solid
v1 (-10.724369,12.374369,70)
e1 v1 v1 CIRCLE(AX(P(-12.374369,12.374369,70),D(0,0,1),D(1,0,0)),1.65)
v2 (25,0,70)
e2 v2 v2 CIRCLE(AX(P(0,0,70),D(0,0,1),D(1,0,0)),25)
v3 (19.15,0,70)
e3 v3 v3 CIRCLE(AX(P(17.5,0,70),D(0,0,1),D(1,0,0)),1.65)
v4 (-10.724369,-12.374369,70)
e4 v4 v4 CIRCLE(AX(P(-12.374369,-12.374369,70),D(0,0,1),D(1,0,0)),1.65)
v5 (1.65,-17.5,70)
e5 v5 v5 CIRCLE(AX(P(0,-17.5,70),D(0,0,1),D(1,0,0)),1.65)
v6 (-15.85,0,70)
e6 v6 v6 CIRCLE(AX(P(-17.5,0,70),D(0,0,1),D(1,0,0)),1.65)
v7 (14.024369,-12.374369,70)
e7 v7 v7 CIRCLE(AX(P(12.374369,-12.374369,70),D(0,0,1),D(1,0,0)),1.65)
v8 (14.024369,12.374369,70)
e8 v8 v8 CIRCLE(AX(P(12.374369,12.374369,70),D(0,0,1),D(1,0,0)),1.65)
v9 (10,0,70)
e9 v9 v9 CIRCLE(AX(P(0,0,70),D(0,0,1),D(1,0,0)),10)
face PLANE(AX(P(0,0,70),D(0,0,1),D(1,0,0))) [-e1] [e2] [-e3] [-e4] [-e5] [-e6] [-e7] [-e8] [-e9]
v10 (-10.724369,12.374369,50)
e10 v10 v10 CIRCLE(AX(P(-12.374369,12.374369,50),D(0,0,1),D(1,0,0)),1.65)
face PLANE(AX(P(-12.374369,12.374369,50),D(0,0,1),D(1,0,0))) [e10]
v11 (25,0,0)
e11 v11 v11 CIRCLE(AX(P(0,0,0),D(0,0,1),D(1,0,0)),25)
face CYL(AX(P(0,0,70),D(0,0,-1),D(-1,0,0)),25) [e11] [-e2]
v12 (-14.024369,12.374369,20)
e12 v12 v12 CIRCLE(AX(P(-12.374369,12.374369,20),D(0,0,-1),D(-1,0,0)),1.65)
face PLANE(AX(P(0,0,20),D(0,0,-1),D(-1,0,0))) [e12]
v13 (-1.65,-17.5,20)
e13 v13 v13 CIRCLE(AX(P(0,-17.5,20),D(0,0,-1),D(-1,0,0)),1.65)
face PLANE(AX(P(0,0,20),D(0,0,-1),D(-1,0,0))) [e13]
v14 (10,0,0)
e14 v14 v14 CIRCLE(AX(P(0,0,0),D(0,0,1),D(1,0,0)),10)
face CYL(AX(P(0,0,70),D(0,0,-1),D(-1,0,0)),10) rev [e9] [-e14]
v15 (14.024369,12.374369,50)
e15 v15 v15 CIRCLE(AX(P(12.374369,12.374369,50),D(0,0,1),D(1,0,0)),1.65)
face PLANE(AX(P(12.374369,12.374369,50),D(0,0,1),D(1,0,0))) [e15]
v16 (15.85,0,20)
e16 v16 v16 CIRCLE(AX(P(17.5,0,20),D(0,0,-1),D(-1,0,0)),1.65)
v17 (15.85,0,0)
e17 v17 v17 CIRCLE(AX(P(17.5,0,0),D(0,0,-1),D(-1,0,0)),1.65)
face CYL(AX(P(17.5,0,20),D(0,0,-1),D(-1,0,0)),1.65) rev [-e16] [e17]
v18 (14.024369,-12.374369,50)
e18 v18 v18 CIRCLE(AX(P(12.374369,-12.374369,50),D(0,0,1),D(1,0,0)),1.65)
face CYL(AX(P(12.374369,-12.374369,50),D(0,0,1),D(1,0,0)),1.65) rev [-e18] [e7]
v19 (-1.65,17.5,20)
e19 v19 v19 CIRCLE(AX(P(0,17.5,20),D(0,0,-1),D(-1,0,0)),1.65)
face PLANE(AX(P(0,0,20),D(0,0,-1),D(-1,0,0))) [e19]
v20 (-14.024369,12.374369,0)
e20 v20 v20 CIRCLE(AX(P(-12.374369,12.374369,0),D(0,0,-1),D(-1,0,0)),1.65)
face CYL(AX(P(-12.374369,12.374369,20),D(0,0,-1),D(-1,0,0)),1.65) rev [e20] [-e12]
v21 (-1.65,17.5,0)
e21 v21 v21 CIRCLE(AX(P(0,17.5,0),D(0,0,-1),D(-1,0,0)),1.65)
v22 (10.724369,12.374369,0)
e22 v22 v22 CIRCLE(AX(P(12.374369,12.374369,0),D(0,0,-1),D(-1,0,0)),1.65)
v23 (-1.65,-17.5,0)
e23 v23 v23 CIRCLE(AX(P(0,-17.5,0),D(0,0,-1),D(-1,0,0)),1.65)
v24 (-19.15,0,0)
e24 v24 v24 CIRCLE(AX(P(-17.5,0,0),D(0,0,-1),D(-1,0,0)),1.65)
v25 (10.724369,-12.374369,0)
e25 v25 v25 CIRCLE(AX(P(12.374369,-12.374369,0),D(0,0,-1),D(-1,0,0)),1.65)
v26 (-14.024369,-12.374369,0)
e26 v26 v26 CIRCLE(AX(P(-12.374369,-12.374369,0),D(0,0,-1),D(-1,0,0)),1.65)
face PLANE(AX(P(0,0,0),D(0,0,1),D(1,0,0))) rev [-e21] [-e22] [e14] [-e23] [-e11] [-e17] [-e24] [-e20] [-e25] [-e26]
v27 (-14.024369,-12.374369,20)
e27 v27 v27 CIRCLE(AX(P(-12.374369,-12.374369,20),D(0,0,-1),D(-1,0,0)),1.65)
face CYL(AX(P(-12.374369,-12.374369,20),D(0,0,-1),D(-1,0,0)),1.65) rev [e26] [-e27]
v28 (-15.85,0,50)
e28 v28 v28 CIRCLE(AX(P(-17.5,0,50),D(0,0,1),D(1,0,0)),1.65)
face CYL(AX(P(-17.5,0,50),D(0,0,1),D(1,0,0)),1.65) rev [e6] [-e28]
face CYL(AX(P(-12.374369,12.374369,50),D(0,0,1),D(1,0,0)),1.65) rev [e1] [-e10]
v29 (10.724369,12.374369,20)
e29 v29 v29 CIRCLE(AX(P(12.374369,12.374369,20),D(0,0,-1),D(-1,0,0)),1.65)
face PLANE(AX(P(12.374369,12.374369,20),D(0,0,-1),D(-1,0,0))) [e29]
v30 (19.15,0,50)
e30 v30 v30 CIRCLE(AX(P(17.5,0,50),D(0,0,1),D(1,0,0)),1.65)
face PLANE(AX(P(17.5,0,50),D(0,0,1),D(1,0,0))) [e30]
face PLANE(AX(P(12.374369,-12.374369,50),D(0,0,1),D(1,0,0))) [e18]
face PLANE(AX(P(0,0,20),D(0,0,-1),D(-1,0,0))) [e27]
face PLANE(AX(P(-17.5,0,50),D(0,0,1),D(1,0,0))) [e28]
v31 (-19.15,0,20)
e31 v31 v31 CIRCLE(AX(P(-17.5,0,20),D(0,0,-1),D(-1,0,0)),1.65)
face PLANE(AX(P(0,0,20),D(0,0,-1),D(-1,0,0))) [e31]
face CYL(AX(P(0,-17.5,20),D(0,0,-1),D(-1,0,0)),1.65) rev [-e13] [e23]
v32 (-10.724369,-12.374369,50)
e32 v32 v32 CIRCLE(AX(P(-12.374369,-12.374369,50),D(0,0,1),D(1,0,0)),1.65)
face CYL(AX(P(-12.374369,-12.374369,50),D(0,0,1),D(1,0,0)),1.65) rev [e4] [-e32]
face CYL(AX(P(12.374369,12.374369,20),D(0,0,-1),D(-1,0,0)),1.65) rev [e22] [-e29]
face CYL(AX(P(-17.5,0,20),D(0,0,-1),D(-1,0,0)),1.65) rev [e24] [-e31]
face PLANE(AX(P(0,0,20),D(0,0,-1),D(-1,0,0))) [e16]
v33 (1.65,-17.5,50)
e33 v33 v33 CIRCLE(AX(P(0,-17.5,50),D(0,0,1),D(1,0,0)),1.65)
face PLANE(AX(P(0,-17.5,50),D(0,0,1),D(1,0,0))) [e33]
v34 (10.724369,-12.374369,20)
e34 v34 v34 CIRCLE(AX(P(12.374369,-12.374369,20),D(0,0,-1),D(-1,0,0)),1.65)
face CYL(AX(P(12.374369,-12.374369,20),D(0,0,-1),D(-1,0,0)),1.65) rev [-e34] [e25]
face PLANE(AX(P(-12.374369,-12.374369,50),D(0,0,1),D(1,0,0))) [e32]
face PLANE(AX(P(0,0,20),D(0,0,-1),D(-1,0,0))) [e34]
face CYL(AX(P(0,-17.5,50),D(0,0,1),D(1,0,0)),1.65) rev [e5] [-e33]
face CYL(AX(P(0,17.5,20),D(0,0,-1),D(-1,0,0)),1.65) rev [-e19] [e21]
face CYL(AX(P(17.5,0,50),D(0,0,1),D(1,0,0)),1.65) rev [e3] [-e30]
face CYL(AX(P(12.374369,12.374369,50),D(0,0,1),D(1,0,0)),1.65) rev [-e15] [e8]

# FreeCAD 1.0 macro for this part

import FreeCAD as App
import Part
import Sketcher
from FreeCAD import Vector

doc = App.newDocument("Part")
params = doc.addObject("Spreadsheet::Sheet", "Params")
for row, (alias, value) in enumerate([
    ("sketch1_diameter", "50 mm"),
    ("sketch1_diameter2", "20 mm"),
    ("pad1_length", "70 mm"),
    ("sketch2_diameter", "3.3 mm"),
    ("pocket1_length", "20 mm"),
    ("sketch3_diameter", "3.3 mm"),
    ("pocket2_length", "20 mm"),
], start=1):
    params.set(f"A{row}", alias)
    params.set(f"B{row}", "=" + value)
    params.setAlias(f"B{row}", alias)

body = doc.addObject("PartDesign::Body", "Body")

# Sketch on XY plane
sketch1 = body.newObject("Sketcher::SketchObject", "Sketch")
sketch1.AttachmentSupport = (doc.getObject("XY_Plane"), [""])
sketch1.MapMode = "FlatFace"
sketch1.addGeometry([
    Part.Circle(Vector(0, 0, 0), Vector(0, 0, 1), 25),
    Part.Circle(Vector(0, 0, 0), Vector(0, 0, 1), 10),
], False)
sketch1.addConstraint([
    Sketcher.Constraint("Coincident", 0, 3, -1, 1),
    Sketcher.Constraint("Coincident", 1, 3, -1, 1),
    Sketcher.Constraint("Diameter", 0, 50.0),
    Sketcher.Constraint("Diameter", 1, 20.0),
])
sketch1.setExpression("Constraints[2]", "Params.sketch1_diameter")
sketch1.setExpression("Constraints[3]", "Params.sketch1_diameter2")
pad1 = body.newObject("PartDesign::Pad", "Pad")
pad1.Profile = sketch1
pad1.setExpression("Length", "Params.pad1_length")

# Sketch on XY plane
sketch2 = body.newObject("Sketcher::SketchObject", "Sketch001")
sketch2.AttachmentSupport = (doc.getObject("XY_Plane"), [""])
sketch2.MapMode = "FlatFace"
sketch2.AttachmentOffset = App.Placement(Vector(0, 0, 70), App.Rotation())
sketch2.addGeometry([
    Part.Circle(Vector(12.4, 12.4, 0), Vector(0, 0, 1), 1.6),  # 0
    Part.Circle(Vector(17.5, 0, 0), Vector(0, 0, 1), 1.6),  # 1
    Part.Circle(Vector(12.4, -12.4, 0), Vector(0, 0, 1), 1.6),  # 2
    Part.Circle(Vector(0, -17.5, 0), Vector(0, 0, 1), 1.6),  # 3
    Part.Circle(Vector(-12.4, -12.4, 0), Vector(0, 0, 1), 1.6),  # 4
    Part.Circle(Vector(-17.5, 0, 0), Vector(0, 0, 1), 1.6),  # 5
    Part.Circle(Vector(-12.4, 12.4, 0), Vector(0, 0, 1), 1.6),  # 6
], False)
sketch2.addConstraint([
    Sketcher.Constraint("Equal", 0, 1),
    Sketcher.Constraint("Equal", 1, 2),
    Sketcher.Constraint("Equal", 2, 3),
    Sketcher.Constraint("Equal", 3, 4),
    Sketcher.Constraint("Equal", 4, 5),
    Sketcher.Constraint("Equal", 5, 6),
    Sketcher.Constraint("Symmetric", 0, 3, 4, 3, -1, 1),
    Sketcher.Constraint("Symmetric", 1, 3, 5, 3, -1, 1),
    Sketcher.Constraint("Symmetric", 2, 3, 6, 3, -1, 1),
    Sketcher.Constraint("Symmetric", 2, 3, 4, 3, -2),
    Sketcher.Constraint("PointOnObject", 1, 3, -1),
    Sketcher.Constraint("PointOnObject", 3, 3, -2),
    Sketcher.Constraint("Diameter", 0, 3.3),
    Sketcher.Constraint("DistanceX", 5, 3, 1, 3, 35.0),
    Sketcher.Constraint("DistanceY", 3, 3, -1, 1, 17.5),
    Sketcher.Constraint("DistanceX", -1, 1, 0, 3, 12.374369),
    Sketcher.Constraint("DistanceY", -1, 1, 0, 3, 12.374369),
])
sketch2.setExpression("Constraints[12]", "Params.sketch2_diameter")
pocket1 = body.newObject("PartDesign::Pocket", "Pocket")
pocket1.Profile = sketch2
pocket1.setExpression("Length", "Params.pocket1_length")

# Sketch on XY plane
sketch3 = body.newObject("Sketcher::SketchObject", "Sketch002")
sketch3.AttachmentSupport = (doc.getObject("XY_Plane"), [""])
sketch3.MapMode = "FlatFace"
sketch3.AttachmentOffset = App.Placement(Vector(0, 0, 20), App.Rotation())
sketch3.addGeometry([
    Part.Circle(Vector(0, 17.5, 0), Vector(0, 0, 1), 1.6),  # 0
    Part.Circle(Vector(-12.4, 12.4, 0), Vector(0, 0, 1), 1.6),  # 1
    Part.Circle(Vector(-17.5, 0, 0), Vector(0, 0, 1), 1.6),  # 2
    Part.Circle(Vector(-12.4, -12.4, 0), Vector(0, 0, 1), 1.6),  # 3
    Part.Circle(Vector(0, -17.5, 0), Vector(0, 0, 1), 1.6),  # 4
    Part.Circle(Vector(12.4, -12.4, 0), Vector(0, 0, 1), 1.6),  # 5
    Part.Circle(Vector(17.5, 0, 0), Vector(0, 0, 1), 1.6),  # 6
    Part.Circle(Vector(12.4, 12.4, 0), Vector(0, 0, 1), 1.6),  # 7
], False)
sketch3.addConstraint([
    Sketcher.Constraint("Equal", 0, 1),
    Sketcher.Constraint("Equal", 1, 2),
    Sketcher.Constraint("Equal", 2, 3),
    Sketcher.Constraint("Equal", 3, 4),
    Sketcher.Constraint("Equal", 4, 5),
    Sketcher.Constraint("Equal", 5, 6),
    Sketcher.Constraint("Equal", 6, 7),
    Sketcher.Constraint("Symmetric", 0, 3, 4, 3, -1, 1),
    Sketcher.Constraint("Symmetric", 1, 3, 5, 3, -1, 1),
    Sketcher.Constraint("Symmetric", 2, 3, 6, 3, -1, 1),
    Sketcher.Constraint("Symmetric", 3, 3, 7, 3, -1, 1),
    Sketcher.Constraint("Symmetric", 3, 3, 5, 3, -2),
    Sketcher.Constraint("PointOnObject", 0, 3, -2),
    Sketcher.Constraint("PointOnObject", 2, 3, -1),
    Sketcher.Constraint("Diameter", 0, 3.3),
    Sketcher.Constraint("DistanceY", 4, 3, 0, 3, 35.0),
    Sketcher.Constraint("DistanceX", 2, 3, -1, 1, 17.5),
    Sketcher.Constraint("DistanceX", 1, 3, -1, 1, 12.374369),
    Sketcher.Constraint("DistanceY", -1, 1, 1, 3, 12.374369),
])
sketch3.setExpression("Constraints[14]", "Params.sketch3_diameter")
pocket2 = body.newObject("PartDesign::Pocket", "Pocket001")
pocket2.Profile = sketch3
pocket2.setExpression("Length", "Params.pocket2_length")

doc.recompute()
